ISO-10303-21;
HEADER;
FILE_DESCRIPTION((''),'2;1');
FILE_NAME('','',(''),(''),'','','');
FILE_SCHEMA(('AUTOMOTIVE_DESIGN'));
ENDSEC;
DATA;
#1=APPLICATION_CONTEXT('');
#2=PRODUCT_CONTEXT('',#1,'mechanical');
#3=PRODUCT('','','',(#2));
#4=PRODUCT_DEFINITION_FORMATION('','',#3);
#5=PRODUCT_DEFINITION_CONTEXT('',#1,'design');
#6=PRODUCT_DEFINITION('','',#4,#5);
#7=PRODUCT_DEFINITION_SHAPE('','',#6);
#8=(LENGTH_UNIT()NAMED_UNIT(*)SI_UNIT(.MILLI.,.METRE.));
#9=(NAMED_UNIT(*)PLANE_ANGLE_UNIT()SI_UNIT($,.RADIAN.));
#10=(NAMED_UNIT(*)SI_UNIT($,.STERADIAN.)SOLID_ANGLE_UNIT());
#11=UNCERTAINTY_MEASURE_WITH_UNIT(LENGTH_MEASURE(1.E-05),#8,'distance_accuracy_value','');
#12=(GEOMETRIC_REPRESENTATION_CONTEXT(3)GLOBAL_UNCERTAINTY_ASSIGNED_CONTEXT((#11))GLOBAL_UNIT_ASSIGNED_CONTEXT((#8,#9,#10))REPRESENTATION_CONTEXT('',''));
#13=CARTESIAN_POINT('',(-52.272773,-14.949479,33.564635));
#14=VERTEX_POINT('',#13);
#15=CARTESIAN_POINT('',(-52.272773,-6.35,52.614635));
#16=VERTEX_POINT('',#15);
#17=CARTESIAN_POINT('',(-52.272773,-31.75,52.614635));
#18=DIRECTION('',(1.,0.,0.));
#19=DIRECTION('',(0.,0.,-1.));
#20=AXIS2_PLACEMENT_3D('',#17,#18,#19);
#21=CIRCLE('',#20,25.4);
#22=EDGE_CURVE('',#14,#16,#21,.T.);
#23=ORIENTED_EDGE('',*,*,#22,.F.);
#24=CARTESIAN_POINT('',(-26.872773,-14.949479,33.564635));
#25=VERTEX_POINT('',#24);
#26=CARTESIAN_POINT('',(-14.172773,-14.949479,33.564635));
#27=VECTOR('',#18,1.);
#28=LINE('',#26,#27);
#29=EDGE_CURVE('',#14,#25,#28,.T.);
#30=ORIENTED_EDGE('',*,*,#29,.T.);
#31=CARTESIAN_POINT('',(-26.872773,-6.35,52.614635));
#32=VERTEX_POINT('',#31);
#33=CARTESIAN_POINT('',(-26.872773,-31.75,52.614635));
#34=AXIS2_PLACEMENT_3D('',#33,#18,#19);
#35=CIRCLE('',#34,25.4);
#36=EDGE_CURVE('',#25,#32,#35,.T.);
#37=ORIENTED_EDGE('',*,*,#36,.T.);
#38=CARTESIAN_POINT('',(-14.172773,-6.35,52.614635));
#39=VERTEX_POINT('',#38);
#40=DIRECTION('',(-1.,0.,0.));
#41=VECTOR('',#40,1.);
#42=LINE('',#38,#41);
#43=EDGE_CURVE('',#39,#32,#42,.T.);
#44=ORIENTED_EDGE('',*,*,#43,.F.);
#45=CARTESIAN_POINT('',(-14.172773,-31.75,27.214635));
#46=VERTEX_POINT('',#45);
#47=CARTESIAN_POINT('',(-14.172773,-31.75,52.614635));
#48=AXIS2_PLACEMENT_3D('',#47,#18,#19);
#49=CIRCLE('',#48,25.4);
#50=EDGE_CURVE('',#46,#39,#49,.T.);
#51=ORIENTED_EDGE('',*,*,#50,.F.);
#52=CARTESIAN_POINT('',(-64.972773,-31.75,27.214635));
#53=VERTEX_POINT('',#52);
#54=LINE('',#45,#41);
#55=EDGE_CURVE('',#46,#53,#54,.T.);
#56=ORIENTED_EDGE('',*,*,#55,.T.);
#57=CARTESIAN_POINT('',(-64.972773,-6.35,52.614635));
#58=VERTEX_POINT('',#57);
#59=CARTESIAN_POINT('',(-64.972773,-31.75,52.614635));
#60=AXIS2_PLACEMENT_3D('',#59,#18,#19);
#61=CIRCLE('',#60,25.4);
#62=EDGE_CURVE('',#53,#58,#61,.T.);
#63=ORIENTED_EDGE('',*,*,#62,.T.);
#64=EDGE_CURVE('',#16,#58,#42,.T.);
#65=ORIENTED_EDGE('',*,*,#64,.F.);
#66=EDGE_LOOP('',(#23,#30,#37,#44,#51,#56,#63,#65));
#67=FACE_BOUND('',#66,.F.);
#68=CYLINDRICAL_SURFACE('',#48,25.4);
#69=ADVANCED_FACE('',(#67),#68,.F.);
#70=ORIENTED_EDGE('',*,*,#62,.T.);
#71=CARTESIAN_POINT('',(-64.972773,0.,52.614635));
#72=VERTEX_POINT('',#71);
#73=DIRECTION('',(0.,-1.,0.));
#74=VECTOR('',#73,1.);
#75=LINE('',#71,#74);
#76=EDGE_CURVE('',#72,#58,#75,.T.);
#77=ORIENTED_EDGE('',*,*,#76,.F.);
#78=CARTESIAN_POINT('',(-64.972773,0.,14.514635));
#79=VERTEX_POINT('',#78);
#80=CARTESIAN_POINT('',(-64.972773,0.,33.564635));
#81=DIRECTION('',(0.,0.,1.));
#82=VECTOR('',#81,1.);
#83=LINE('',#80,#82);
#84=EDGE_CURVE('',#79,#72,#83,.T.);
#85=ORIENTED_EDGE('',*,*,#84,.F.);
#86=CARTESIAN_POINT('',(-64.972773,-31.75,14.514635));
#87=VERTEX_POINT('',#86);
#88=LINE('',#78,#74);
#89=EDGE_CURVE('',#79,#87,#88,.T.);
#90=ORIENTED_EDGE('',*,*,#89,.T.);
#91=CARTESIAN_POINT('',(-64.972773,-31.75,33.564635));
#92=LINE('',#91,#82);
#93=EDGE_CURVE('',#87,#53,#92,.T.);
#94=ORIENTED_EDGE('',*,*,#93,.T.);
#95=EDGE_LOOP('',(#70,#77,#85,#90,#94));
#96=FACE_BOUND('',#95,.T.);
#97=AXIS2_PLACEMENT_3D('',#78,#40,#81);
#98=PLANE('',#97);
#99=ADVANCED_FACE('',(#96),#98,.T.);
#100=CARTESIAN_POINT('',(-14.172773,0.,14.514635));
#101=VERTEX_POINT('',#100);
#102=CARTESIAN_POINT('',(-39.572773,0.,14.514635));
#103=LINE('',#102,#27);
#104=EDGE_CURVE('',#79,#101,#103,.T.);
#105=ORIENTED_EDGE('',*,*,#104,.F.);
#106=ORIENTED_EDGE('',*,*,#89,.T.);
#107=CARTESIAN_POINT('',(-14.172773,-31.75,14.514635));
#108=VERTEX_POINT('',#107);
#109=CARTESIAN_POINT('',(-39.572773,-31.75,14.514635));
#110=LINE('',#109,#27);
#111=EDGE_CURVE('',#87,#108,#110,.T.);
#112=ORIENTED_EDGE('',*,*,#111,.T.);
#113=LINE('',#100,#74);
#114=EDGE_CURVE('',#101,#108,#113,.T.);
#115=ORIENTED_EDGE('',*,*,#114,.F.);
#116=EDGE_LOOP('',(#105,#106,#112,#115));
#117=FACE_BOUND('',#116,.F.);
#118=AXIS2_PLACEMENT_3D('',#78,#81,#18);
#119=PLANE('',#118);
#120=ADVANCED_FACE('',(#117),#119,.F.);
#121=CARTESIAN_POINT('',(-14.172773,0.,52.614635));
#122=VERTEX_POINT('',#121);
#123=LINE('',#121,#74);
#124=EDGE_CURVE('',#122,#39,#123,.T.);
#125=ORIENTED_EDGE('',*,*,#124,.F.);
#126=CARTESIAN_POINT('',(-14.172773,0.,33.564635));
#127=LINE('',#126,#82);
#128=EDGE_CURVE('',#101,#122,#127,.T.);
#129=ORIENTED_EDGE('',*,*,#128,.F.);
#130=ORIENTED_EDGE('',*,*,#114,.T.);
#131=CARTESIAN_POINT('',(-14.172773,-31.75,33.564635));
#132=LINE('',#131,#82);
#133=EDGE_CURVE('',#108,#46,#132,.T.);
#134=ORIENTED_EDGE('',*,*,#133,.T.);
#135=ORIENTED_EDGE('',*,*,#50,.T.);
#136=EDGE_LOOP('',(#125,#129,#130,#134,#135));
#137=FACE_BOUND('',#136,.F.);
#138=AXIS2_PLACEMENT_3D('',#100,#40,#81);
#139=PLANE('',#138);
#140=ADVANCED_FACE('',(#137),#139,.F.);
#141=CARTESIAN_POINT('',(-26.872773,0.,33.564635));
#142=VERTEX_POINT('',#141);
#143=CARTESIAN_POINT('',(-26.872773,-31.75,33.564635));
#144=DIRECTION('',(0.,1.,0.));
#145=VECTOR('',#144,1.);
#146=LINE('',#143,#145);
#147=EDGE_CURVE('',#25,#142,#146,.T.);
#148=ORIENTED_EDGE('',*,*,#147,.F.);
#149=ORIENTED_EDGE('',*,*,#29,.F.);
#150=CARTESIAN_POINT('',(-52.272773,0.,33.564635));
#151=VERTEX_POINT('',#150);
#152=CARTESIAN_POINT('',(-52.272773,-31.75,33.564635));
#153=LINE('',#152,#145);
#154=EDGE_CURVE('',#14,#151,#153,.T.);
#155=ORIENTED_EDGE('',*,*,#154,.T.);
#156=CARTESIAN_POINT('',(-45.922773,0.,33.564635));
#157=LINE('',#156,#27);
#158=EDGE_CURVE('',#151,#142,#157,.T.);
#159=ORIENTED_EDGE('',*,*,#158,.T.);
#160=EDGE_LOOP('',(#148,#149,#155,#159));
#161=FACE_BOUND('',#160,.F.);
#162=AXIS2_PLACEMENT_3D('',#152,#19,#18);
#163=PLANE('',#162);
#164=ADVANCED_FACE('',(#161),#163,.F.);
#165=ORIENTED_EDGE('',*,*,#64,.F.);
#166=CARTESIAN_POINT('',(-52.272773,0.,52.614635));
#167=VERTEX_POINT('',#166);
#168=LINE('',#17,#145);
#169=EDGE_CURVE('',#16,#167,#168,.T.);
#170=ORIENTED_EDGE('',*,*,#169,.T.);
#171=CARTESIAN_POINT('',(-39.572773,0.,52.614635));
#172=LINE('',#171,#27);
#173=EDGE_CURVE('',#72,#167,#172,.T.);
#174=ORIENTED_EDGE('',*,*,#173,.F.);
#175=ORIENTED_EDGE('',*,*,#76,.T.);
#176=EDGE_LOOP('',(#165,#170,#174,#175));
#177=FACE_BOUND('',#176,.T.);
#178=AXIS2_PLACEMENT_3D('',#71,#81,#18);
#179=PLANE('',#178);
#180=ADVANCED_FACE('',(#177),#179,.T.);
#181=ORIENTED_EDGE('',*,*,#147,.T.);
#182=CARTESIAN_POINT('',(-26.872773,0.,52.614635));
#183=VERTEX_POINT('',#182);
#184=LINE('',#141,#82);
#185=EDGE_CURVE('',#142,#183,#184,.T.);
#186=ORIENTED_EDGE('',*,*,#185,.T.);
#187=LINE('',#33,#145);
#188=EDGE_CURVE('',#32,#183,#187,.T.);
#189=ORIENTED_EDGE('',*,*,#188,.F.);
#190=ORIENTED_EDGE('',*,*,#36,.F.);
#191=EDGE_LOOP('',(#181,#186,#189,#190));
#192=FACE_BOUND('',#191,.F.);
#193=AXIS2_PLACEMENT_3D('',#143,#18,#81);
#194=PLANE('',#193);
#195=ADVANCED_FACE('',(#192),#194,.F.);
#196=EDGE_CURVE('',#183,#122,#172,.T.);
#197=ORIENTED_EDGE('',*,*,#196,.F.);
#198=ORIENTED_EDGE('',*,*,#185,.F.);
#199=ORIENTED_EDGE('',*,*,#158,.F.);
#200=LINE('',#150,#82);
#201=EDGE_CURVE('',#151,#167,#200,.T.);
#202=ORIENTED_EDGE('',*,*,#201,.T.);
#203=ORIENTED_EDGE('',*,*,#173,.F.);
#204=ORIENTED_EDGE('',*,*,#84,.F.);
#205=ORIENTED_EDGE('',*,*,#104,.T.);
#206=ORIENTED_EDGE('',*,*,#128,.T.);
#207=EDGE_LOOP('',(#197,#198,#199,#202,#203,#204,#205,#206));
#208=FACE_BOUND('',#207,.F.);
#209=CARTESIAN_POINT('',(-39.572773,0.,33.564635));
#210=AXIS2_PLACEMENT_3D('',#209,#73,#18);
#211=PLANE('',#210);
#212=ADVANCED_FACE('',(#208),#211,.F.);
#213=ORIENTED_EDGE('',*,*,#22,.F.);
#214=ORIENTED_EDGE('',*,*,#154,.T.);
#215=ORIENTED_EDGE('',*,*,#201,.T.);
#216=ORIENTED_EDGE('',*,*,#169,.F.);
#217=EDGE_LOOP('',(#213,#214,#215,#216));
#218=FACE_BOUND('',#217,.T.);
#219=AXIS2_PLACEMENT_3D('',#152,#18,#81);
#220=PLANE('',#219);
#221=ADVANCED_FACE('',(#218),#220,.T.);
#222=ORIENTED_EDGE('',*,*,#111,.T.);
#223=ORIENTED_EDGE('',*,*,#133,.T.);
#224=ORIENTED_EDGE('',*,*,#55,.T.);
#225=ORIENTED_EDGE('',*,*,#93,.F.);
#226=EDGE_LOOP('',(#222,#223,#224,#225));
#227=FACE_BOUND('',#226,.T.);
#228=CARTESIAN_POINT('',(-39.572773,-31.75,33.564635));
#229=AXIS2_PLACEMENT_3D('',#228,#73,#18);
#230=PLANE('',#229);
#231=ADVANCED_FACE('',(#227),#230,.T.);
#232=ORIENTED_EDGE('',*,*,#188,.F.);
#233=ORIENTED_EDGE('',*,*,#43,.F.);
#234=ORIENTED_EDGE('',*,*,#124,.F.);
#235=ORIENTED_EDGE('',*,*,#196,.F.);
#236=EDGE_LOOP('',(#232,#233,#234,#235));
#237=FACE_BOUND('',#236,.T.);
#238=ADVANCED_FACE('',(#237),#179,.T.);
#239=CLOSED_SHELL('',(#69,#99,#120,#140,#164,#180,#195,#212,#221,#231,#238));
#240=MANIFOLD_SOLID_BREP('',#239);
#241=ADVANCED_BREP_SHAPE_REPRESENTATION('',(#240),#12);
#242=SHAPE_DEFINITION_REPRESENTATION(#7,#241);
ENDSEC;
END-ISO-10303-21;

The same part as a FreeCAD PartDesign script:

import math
import FreeCAD as App
import Part
import Sketcher
Q = App.Units.Quantity

doc = App.newDocument("Part")
body = doc.addObject("PartDesign::Body", "Body")

# Sketch on XZ plane
sketch1 = body.newObject("Sketcher::SketchObject", "Sketch")
sketch1.AttachmentSupport = (doc.getObject("XZ_Plane"), [""])
sketch1.MapMode = "FlatFace"
sketch1.addGeometry(Part.LineSegment(App.Vector(-64.972773, 52.614635, 0), App.Vector(-64.972773, 14.514635, 0)), False)
sketch1.addGeometry(Part.LineSegment(App.Vector(-64.972773, 14.514635, 0), App.Vector(-14.172773, 14.514635, 0)), False)
sketch1.addGeometry(Part.LineSegment(App.Vector(-14.172773, 14.514635, 0), App.Vector(-14.172773, 52.614635, 0)), False)
sketch1.addGeometry(Part.LineSegment(App.Vector(-14.172773, 52.614635, 0), App.Vector(-64.972773, 52.614635, 0)), False)
sketch1.addConstraint(Sketcher.Constraint("Coincident", 0, 2, 1, 1))
sketch1.addConstraint(Sketcher.Constraint("Coincident", 1, 2, 2, 1))
sketch1.addConstraint(Sketcher.Constraint("Coincident", 2, 2, 3, 1))
sketch1.addConstraint(Sketcher.Constraint("Coincident", 3, 2, 0, 1))
sketch1.addConstraint(Sketcher.Constraint("Vertical", 0))
sketch1.addConstraint(Sketcher.Constraint("Horizontal", 1))
sketch1.addConstraint(Sketcher.Constraint("Vertical", 2))
sketch1.addConstraint(Sketcher.Constraint("Horizontal", 3))
sketch1.addConstraint(Sketcher.Constraint("DistanceX", 1, 1, 1, 2, Q("2 in")))
sketch1.addConstraint(Sketcher.Constraint("DistanceY", 0, 2, 0, 1, Q("1.5 in")))
sketch1.addConstraint(Sketcher.Constraint("DistanceX", 0, 2, -1, 1, 64.972773))
sketch1.addConstraint(Sketcher.Constraint("DistanceY", -1, 1, 0, 2, 14.514635))
pad1 = body.newObject("PartDesign::Pad", "Pad")
pad1.Profile = sketch1
pad1.Length = Q("1.25 in")

# Sketch on XZ plane
sketch2 = body.newObject("Sketcher::SketchObject", "Sketch001")
sketch2.AttachmentSupport = (doc.getObject("XZ_Plane"), [""])
sketch2.MapMode = "FlatFace"
sketch2.AttachmentOffset = App.Placement(App.Vector(0, 0, 1.25 * 25.4), App.Rotation())
sketch2.addGeometry(Part.LineSegment(App.Vector(-52.272773, 52.614635, 0), App.Vector(-52.272773, 33.564635, 0)), False)
sketch2.addGeometry(Part.LineSegment(App.Vector(-52.272773, 33.564635, 0), App.Vector(-26.872773, 33.564635, 0)), False)
sketch2.addGeometry(Part.LineSegment(App.Vector(-26.872773, 33.564635, 0), App.Vector(-26.872773, 52.614635, 0)), False)
sketch2.addGeometry(Part.LineSegment(App.Vector(-26.872773, 52.614635, 0), App.Vector(-52.272773, 52.614635, 0)), False)
sketch2.addConstraint(Sketcher.Constraint("Coincident", 0, 2, 1, 1))
sketch2.addConstraint(Sketcher.Constraint("Coincident", 1, 2, 2, 1))
sketch2.addConstraint(Sketcher.Constraint("Coincident", 2, 2, 3, 1))
sketch2.addConstraint(Sketcher.Constraint("Coincident", 3, 2, 0, 1))
sketch2.addConstraint(Sketcher.Constraint("Vertical", 0))
sketch2.addConstraint(Sketcher.Constraint("Horizontal", 1))
sketch2.addConstraint(Sketcher.Constraint("Vertical", 2))
sketch2.addConstraint(Sketcher.Constraint("Horizontal", 3))
sketch2.addConstraint(Sketcher.Constraint("DistanceX", 1, 1, 1, 2, Q("1 in")))
sketch2.addConstraint(Sketcher.Constraint("DistanceY", 0, 2, 0, 1, Q("0.75 in")))
sketch2.addConstraint(Sketcher.Constraint("DistanceX", 0, 2, -1, 1, 52.272773))
sketch2.addConstraint(Sketcher.Constraint("DistanceY", -1, 1, 0, 2, 33.564635))
pocket1 = body.newObject("PartDesign::Pocket", "Pocket")
pocket1.Profile = sketch2
pocket1.Type = "ThroughAll"

# Sketch on YZ plane
sketch3 = body.newObject("Sketcher::SketchObject", "Sketch002")
sketch3.AttachmentSupport = (doc.getObject("YZ_Plane"), [""])
sketch3.MapMode = "FlatFace"
sketch3.AttachmentOffset = App.Placement(App.Vector(0, 0, -14.172773), App.Rotation())
sketch3.addGeometry(Part.ArcOfCircle(Part.Circle(App.Vector(-31.75, 52.614635, 0), App.Vector(0, 0, 1), 25.4), math.radians(-90), math.radians(0)), False)
sketch3.addGeometry(Part.LineSegment(App.Vector(-6.35, 52.614635, 0), App.Vector(-31.75, 52.614635, 0)), False)
sketch3.addGeometry(Part.LineSegment(App.Vector(-31.75, 52.614635, 0), App.Vector(-31.75, 27.214635, 0)), False)
sketch3.addConstraint(Sketcher.Constraint("Coincident", 0, 2, 1, 1))
sketch3.addConstraint(Sketcher.Constraint("Coincident", 1, 2, 2, 1))
sketch3.addConstraint(Sketcher.Constraint("Coincident", 2, 2, 0, 1))
sketch3.addConstraint(Sketcher.Constraint("Horizontal", 1))
sketch3.addConstraint(Sketcher.Constraint("Vertical", 2))
sketch3.addConstraint(Sketcher.Constraint("Coincident", 1, 2, 0, 3))
sketch3.addConstraint(Sketcher.Constraint("Radius", 0, Q("1 in")))
sketch3.addConstraint(Sketcher.Constraint("DistanceX", 0, 3, -1, 1, Q("1.25 in")))
sketch3.addConstraint(Sketcher.Constraint("DistanceY", -1, 1, 0, 3, 52.614635))
pocket2 = body.newObject("PartDesign::Pocket", "Pocket001")
pocket2.Profile = sketch3
pocket2.Type = "ThroughAll"

doc.recompute()
